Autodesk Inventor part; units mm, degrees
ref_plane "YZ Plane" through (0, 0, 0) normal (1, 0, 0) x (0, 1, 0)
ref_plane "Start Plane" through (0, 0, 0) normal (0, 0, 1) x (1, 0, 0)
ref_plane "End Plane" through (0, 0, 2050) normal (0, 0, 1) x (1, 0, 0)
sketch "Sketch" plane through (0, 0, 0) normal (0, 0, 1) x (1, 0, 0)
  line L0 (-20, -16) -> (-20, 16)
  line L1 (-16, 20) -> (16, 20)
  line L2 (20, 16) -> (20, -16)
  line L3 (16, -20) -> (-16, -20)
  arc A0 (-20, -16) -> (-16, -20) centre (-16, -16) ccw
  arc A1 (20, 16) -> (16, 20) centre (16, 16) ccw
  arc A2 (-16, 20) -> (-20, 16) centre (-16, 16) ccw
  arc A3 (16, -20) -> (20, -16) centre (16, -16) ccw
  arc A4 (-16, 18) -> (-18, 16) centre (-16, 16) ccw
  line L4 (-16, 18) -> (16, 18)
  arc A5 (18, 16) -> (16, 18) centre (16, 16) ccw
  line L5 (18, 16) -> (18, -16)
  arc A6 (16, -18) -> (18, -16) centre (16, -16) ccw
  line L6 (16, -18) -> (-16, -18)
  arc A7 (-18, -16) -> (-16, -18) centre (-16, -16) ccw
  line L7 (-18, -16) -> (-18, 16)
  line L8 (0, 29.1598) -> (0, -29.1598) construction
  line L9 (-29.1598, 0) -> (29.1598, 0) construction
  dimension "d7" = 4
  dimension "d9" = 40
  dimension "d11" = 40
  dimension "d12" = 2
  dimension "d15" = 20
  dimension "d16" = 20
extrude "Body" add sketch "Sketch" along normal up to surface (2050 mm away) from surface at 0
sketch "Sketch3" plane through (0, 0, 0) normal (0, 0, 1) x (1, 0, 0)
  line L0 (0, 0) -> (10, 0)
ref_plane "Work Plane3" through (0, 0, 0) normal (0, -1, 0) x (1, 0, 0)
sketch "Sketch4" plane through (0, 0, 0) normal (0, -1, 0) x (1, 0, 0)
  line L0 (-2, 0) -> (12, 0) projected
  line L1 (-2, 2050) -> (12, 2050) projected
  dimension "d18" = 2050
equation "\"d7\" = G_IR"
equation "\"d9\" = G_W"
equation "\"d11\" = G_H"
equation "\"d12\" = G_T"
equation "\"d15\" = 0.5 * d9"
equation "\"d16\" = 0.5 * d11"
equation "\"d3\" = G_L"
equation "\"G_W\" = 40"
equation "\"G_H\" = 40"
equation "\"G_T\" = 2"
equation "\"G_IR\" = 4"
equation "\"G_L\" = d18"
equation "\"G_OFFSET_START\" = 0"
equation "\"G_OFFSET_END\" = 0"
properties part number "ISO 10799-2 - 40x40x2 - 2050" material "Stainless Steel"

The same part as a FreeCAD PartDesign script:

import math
import FreeCAD as App
import Part
import Sketcher

doc = App.newDocument("Part")
body = doc.addObject("PartDesign::Body", "Body")

# Sketch on XY plane
sketch1 = doc.addObject("Sketcher::SketchObject", "Sketch")
body.addObject(sketch1)
sketch1.AttachmentSupport = (doc.XY_Plane, [""])
sketch1.MapMode = "FlatFace"
sketch1.addGeometry(Part.LineSegment(App.Vector(-20, 16, 0), App.Vector(-20, -16, 0)), False)
sketch1.addGeometry(Part.ArcOfCircle(Part.Circle(App.Vector(-16, -16, 0), App.Vector(0, 0, 1), 4), math.radians(180), math.radians(270)), False)
sketch1.addGeometry(Part.LineSegment(App.Vector(-16, -20, 0), App.Vector(16, -20, 0)), False)
sketch1.addGeometry(Part.ArcOfCircle(Part.Circle(App.Vector(16, -16, 0), App.Vector(0, 0, 1), 4), math.radians(-90), math.radians(0)), False)
sketch1.addGeometry(Part.LineSegment(App.Vector(20, -16, 0), App.Vector(20, 16, 0)), False)
sketch1.addGeometry(Part.ArcOfCircle(Part.Circle(App.Vector(16, 16, 0), App.Vector(0, 0, 1), 4), math.radians(0), math.radians(90)), False)
sketch1.addGeometry(Part.LineSegment(App.Vector(16, 20, 0), App.Vector(-16, 20, 0)), False)
sketch1.addGeometry(Part.ArcOfCircle(Part.Circle(App.Vector(-16, 16, 0), App.Vector(0, 0, 1), 4), math.radians(90), math.radians(180)), False)
sketch1.addGeometry(Part.ArcOfCircle(Part.Circle(App.Vector(-16, 16, 0), App.Vector(0, 0, 1), 2), math.radians(90), math.radians(180)), False)
sketch1.addGeometry(Part.LineSegment(App.Vector(-16, 18, 0), App.Vector(16, 18, 0)), False)
sketch1.addGeometry(Part.ArcOfCircle(Part.Circle(App.Vector(16, 16, 0), App.Vector(0, 0, 1), 2), math.radians(0), math.radians(90)), False)
sketch1.addGeometry(Part.LineSegment(App.Vector(18, 16, 0), App.Vector(18, -16, 0)), False)
sketch1.addGeometry(Part.ArcOfCircle(Part.Circle(App.Vector(16, -16, 0), App.Vector(0, 0, 1), 2), math.radians(-90), math.radians(0)), False)
sketch1.addGeometry(Part.LineSegment(App.Vector(16, -18, 0), App.Vector(-16, -18, 0)), False)
sketch1.addGeometry(Part.ArcOfCircle(Part.Circle(App.Vector(-16, -16, 0), App.Vector(0, 0, 1), 2), math.radians(180), math.radians(270)), False)
sketch1.addGeometry(Part.LineSegment(App.Vector(-18, -16, 0), App.Vector(-18, 16, 0)), False)
sketch1.addConstraint(Sketcher.Constraint("Tangent", 0, 2, 1, 1))
sketch1.addConstraint(Sketcher.Constraint("Tangent", 1, 2, 2, 1))
sketch1.addConstraint(Sketcher.Constraint("Tangent", 2, 2, 3, 1))
sketch1.addConstraint(Sketcher.Constraint("Tangent", 3, 2, 4, 1))
sketch1.addConstraint(Sketcher.Constraint("Tangent", 4, 2, 5, 1))
sketch1.addConstraint(Sketcher.Constraint("Tangent", 5, 2, 6, 1))
sketch1.addConstraint(Sketcher.Constraint("Tangent", 6, 2, 7, 1))
sketch1.addConstraint(Sketcher.Constraint("Tangent", 7, 2, 0, 1))
sketch1.addConstraint(Sketcher.Constraint("Tangent", 8, 1, 9, 1))
sketch1.addConstraint(Sketcher.Constraint("Tangent", 9, 2, 10, 2))
sketch1.addConstraint(Sketcher.Constraint("Tangent", 10, 1, 11, 1))
sketch1.addConstraint(Sketcher.Constraint("Tangent", 11, 2, 12, 2))
sketch1.addConstraint(Sketcher.Constraint("Tangent", 12, 1, 13, 1))
sketch1.addConstraint(Sketcher.Constraint("Tangent", 13, 2, 14, 2))
sketch1.addConstraint(Sketcher.Constraint("Tangent", 14, 1, 15, 1))
sketch1.addConstraint(Sketcher.Constraint("Tangent", 15, 2, 8, 2))
sketch1.addConstraint(Sketcher.Constraint("Vertical", 0))
sketch1.addConstraint(Sketcher.Constraint("Horizontal", 2))
sketch1.addConstraint(Sketcher.Constraint("Vertical", 4))
sketch1.addConstraint(Sketcher.Constraint("Horizontal", 6))
sketch1.addConstraint(Sketcher.Constraint("Horizontal", 9))
sketch1.addConstraint(Sketcher.Constraint("Vertical", 11))
sketch1.addConstraint(Sketcher.Constraint("Horizontal", 13))
sketch1.addConstraint(Sketcher.Constraint("Vertical", 15))
sketch1.addConstraint(Sketcher.Constraint("Coincident", 8, 3, 7, 3))
sketch1.addConstraint(Sketcher.Constraint("Coincident", 10, 3, 5, 3))
sketch1.addConstraint(Sketcher.Constraint("Coincident", 12, 3, 3, 3))
sketch1.addConstraint(Sketcher.Constraint("Equal", 1, 3))
sketch1.addConstraint(Sketcher.Constraint("Equal", 3, 5))
sketch1.addConstraint(Sketcher.Constraint("Equal", 5, 7))
sketch1.addConstraint(Sketcher.Constraint("Equal", 12, 14))
sketch1.addConstraint(Sketcher.Constraint("Symmetric", 1, 3, 5, 3, -1, 1))
sketch1.addConstraint(Sketcher.Constraint("Equal", 13, 0))
sketch1.addConstraint(Sketcher.Constraint("Radius", 1, 4.0))
sketch1.addConstraint(Sketcher.Constraint("Radius", 8, 2.0))
sketch1.addConstraint(Sketcher.Constraint("DistanceX", 0, 2, -1, 1, 20.0))
pad1 = doc.addObject("PartDesign::Pad", "Pad")
body.addObject(pad1)
pad1.Profile = sketch1
pad1.Length = 2050

doc.recompute()
